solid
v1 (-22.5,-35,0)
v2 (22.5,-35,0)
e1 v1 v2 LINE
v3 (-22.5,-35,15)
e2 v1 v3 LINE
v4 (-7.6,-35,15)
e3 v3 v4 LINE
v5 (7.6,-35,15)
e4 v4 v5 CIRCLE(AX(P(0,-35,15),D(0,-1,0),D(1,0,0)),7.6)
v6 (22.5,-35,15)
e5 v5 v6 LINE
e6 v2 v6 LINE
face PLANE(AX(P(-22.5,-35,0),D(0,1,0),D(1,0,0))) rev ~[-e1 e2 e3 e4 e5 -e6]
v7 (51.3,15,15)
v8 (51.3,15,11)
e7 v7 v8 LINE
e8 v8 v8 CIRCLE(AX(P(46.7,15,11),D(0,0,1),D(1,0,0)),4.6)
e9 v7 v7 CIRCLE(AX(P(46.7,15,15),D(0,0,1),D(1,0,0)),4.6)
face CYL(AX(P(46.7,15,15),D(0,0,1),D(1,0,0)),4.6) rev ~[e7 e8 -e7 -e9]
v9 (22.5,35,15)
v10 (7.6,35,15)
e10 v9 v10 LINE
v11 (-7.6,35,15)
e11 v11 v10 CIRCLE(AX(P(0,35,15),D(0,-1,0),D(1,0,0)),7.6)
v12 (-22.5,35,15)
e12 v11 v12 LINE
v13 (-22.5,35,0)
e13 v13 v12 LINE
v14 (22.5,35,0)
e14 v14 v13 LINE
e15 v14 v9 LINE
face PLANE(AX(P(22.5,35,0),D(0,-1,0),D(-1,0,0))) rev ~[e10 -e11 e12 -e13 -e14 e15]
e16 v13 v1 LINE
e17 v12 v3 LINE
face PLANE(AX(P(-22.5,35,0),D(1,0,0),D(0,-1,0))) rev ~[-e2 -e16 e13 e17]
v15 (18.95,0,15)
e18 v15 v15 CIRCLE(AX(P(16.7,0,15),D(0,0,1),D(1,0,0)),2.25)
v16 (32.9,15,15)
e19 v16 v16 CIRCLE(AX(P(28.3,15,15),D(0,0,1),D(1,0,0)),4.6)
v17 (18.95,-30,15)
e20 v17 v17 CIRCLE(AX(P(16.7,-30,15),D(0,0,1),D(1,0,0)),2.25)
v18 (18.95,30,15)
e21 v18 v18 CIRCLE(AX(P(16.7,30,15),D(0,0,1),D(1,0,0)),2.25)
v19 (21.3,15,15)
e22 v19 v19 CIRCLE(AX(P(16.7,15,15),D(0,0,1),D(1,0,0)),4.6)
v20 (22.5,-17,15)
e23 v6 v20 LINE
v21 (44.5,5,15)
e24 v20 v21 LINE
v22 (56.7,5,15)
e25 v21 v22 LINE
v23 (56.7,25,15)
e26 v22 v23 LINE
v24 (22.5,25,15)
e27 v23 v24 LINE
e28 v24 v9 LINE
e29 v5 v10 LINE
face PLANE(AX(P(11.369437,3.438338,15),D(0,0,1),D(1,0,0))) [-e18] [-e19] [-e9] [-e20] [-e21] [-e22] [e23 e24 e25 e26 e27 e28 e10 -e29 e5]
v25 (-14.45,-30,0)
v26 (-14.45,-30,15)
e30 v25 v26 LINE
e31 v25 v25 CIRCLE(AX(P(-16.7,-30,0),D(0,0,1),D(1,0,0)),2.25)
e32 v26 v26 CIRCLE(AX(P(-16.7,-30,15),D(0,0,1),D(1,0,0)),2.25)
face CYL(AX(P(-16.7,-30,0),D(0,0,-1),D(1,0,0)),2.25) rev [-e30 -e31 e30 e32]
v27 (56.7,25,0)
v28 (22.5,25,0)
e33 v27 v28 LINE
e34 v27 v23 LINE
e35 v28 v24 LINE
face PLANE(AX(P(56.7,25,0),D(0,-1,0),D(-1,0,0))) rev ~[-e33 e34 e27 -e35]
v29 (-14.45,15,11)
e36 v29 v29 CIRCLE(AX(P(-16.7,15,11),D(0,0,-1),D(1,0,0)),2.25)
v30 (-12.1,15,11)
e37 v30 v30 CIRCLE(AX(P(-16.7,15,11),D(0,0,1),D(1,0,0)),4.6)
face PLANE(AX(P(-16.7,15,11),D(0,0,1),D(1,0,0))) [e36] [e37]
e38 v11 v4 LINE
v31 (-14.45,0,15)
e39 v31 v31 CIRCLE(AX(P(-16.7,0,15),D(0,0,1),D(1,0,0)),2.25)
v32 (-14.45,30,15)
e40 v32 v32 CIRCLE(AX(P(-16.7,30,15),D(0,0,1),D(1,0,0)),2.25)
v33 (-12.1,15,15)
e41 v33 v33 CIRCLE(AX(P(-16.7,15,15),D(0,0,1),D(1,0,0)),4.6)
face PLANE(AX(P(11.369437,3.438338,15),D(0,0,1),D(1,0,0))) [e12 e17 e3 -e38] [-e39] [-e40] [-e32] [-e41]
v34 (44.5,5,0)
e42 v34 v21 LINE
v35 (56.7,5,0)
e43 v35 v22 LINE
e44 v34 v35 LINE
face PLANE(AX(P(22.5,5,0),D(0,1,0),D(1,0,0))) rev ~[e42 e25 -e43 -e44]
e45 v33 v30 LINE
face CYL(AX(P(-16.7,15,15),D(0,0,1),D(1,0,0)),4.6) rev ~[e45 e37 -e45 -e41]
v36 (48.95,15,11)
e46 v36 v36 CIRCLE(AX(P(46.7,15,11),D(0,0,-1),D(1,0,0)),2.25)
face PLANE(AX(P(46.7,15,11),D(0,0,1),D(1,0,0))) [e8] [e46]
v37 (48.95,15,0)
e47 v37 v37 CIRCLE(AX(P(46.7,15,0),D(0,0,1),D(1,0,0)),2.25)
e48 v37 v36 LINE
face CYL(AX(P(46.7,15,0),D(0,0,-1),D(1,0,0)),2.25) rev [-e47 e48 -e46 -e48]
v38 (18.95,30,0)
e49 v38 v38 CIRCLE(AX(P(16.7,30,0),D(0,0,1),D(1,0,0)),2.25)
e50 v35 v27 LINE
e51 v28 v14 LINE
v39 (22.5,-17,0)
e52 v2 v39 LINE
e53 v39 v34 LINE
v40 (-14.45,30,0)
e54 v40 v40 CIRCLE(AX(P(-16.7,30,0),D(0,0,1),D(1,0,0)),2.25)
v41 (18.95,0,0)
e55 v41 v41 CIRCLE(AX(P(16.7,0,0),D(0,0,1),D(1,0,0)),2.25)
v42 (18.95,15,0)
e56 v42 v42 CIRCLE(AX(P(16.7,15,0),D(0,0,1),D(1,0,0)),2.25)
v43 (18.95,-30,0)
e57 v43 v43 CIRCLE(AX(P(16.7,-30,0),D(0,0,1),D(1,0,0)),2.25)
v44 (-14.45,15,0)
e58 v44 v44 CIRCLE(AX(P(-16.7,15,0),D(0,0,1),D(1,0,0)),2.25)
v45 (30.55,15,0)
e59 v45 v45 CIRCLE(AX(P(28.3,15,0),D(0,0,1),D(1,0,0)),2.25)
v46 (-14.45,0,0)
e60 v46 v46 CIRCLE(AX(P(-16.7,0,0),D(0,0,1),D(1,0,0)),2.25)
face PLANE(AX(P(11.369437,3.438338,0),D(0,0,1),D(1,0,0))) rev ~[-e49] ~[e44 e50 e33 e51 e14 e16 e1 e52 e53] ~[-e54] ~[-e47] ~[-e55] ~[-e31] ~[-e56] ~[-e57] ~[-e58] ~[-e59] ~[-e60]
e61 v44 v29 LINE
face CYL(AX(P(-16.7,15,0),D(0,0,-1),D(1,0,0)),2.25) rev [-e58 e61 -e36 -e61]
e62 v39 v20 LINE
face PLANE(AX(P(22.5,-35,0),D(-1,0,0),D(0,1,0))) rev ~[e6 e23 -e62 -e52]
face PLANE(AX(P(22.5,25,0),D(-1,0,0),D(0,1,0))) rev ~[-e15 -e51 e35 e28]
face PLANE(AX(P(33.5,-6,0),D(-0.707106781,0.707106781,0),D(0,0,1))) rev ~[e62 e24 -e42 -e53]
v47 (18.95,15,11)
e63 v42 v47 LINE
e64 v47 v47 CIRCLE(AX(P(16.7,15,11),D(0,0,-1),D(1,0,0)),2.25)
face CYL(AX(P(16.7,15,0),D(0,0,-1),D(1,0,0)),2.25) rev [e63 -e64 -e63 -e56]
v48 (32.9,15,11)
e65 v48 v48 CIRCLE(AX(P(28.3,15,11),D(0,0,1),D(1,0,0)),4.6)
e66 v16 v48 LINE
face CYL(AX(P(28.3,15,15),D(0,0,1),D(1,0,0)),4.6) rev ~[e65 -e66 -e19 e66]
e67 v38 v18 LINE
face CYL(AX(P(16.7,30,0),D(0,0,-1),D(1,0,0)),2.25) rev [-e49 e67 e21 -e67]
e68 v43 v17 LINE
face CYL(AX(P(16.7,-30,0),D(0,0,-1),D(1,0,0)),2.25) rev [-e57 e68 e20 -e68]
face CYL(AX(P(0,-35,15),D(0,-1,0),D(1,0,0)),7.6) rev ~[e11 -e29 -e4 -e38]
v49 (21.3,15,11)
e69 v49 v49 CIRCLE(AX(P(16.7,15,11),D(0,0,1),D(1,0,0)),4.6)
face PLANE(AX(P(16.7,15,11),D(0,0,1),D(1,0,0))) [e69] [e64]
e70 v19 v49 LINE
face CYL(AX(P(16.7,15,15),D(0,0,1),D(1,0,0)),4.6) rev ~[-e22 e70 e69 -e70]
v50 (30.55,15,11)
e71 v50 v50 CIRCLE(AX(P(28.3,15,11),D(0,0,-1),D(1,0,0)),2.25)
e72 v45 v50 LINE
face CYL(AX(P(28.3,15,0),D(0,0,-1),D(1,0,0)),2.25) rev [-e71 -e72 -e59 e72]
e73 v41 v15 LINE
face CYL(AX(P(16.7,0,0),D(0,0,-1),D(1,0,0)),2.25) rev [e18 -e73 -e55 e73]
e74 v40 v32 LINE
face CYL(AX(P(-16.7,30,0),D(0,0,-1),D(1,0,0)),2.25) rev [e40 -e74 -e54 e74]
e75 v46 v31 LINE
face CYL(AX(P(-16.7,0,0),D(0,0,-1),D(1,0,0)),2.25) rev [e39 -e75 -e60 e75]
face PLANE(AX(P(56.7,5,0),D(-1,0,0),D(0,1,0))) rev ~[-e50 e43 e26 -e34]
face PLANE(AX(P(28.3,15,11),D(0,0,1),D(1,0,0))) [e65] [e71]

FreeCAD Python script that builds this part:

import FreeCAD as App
import Part
import Sketcher
Q = App.Units.Quantity


def edges_at(feature, points):
    """Names of the edges that pass closest to the given points."""
    edges = feature.Shape.Edges
    near = lambda p: min(range(len(edges)), key=lambda i: edges[i].distToShape(Part.Vertex(*p))[0])
    return sorted({f"Edge{near(p) + 1}" for p in points})

doc = App.newDocument("Part")
body = doc.addObject("PartDesign::Body", "Body")

# Sketch on XY plane
sketch1 = body.newObject("Sketcher::SketchObject", "Sketch")
sketch1.AttachmentSupport = (doc.getObject("XY_Plane"), [""])
sketch1.MapMode = "FlatFace"
sketch1.addGeometry(Part.LineSegment(App.Vector(-22.5, -35, 0), App.Vector(22.5, -35, 0)), False)
sketch1.addGeometry(Part.LineSegment(App.Vector(22.5, -35, 0), App.Vector(22.5, 5, 0)), False)
sketch1.addGeometry(Part.LineSegment(App.Vector(22.5, 5, 0), App.Vector(56.7, 5, 0)), False)
sketch1.addGeometry(Part.LineSegment(App.Vector(56.7, 5, 0), App.Vector(56.7, 25, 0)), False)
sketch1.addGeometry(Part.LineSegment(App.Vector(56.7, 25, 0), App.Vector(22.5, 25, 0)), False)
sketch1.addGeometry(Part.LineSegment(App.Vector(22.5, 25, 0), App.Vector(22.5, 35, 0)), False)
sketch1.addGeometry(Part.LineSegment(App.Vector(22.5, 35, 0), App.Vector(-22.5, 35, 0)), False)
sketch1.addGeometry(Part.LineSegment(App.Vector(-22.5, 35, 0), App.Vector(-22.5, -35, 0)), False)
sketch1.addGeometry(Part.Circle(App.Vector(-16.7, -30, 0), App.Vector(0, 0, 1), 2.25), False)
sketch1.addGeometry(Part.Circle(App.Vector(16.7, -30, 0), App.Vector(0, 0, 1), 2.25), False)
sketch1.addGeometry(Part.Circle(App.Vector(-16.7, 0, 0), App.Vector(0, 0, 1), 2.25), False)
sketch1.addGeometry(Part.Circle(App.Vector(-16.7, 15, 0), App.Vector(0, 0, 1), 2.25), False)
sketch1.addGeometry(Part.Circle(App.Vector(-16.7, 30, 0), App.Vector(0, 0, 1), 2.25), False)
sketch1.addGeometry(Part.Circle(App.Vector(16.7, 0, 0), App.Vector(0, 0, 1), 2.25), False)
sketch1.addGeometry(Part.Circle(App.Vector(16.7, 15, 0), App.Vector(0, 0, 1), 2.25), False)
sketch1.addGeometry(Part.Circle(App.Vector(28.3, 15, 0), App.Vector(0, 0, 1), 2.25), False)
sketch1.addGeometry(Part.Circle(App.Vector(46.7, 15, 0), App.Vector(0, 0, 1), 2.25), False)
sketch1.addGeometry(Part.Circle(App.Vector(16.7, 30, 0), App.Vector(0, 0, 1), 2.25), False)
sketch1.addConstraint(Sketcher.Constraint("Coincident", 0, 2, 1, 1))
sketch1.addConstraint(Sketcher.Constraint("Coincident", 1, 2, 2, 1))
sketch1.addConstraint(Sketcher.Constraint("Coincident", 2, 2, 3, 1))
sketch1.addConstraint(Sketcher.Constraint("Coincident", 3, 2, 4, 1))
sketch1.addConstraint(Sketcher.Constraint("Coincident", 4, 2, 5, 1))
sketch1.addConstraint(Sketcher.Constraint("Coincident", 5, 2, 6, 1))
sketch1.addConstraint(Sketcher.Constraint("Coincident", 6, 2, 7, 1))
sketch1.addConstraint(Sketcher.Constraint("Coincident", 7, 2, 0, 1))
sketch1.addConstraint(Sketcher.Constraint("Horizontal", 0))
sketch1.addConstraint(Sketcher.Constraint("Vertical", 1))
sketch1.addConstraint(Sketcher.Constraint("Horizontal", 2))
sketch1.addConstraint(Sketcher.Constraint("Vertical", 3))
sketch1.addConstraint(Sketcher.Constraint("Horizontal", 4))
sketch1.addConstraint(Sketcher.Constraint("Vertical", 5))
sketch1.addConstraint(Sketcher.Constraint("Horizontal", 6))
sketch1.addConstraint(Sketcher.Constraint("Vertical", 7))
sketch1.addConstraint(Sketcher.Constraint("Equal", 8, 9))
sketch1.addConstraint(Sketcher.Constraint("Equal", 9, 10))
sketch1.addConstraint(Sketcher.Constraint("Equal", 10, 11))
sketch1.addConstraint(Sketcher.Constraint("Equal", 11, 12))
sketch1.addConstraint(Sketcher.Constraint("Equal", 12, 13))
sketch1.addConstraint(Sketcher.Constraint("Equal", 13, 14))
sketch1.addConstraint(Sketcher.Constraint("Equal", 14, 15))
sketch1.addConstraint(Sketcher.Constraint("Equal", 15, 16))
sketch1.addConstraint(Sketcher.Constraint("Equal", 16, 17))
sketch1.addConstraint(Sketcher.Constraint("Symmetric", 9, 3, 12, 3, -1, 1))
sketch1.addConstraint(Sketcher.Constraint("Symmetric", 10, 3, 13, 3, -1, 1))
sketch1.addConstraint(Sketcher.Constraint("Symmetric", 8, 3, 17, 3, -1, 1))
sketch1.addConstraint(Sketcher.Constraint("Symmetric", 0, 2, 6, 2, -1, 1))
sketch1.addConstraint(Sketcher.Constraint("Symmetric", 8, 3, 9, 3, -2))
sketch1.addConstraint(Sketcher.Constraint("Symmetric", 11, 3, 14, 3, -2))
sketch1.addConstraint(Sketcher.Constraint("PointOnObject", 10, 3, -1))
sketch1.addConstraint(Sketcher.Constraint("Horizontal", 14, 3, 15, 3))
sketch1.addConstraint(Sketcher.Constraint("Horizontal", 15, 3, 16, 3))
sketch1.addConstraint(Sketcher.Constraint("Vertical", 8, 3, 10, 3))
sketch1.addConstraint(Sketcher.Constraint("Vertical", 10, 3, 11, 3))
sketch1.addConstraint(Sketcher.Constraint("Vertical", 1, 2, 4, 2))
sketch1.addConstraint(Sketcher.Constraint("Diameter", 8, Q("4.5 mm")))
sketch1.addConstraint(Sketcher.Constraint("DistanceX", 0, 1, 0, 2, Q("45 mm")))
sketch1.addConstraint(Sketcher.Constraint("DistanceY", 1, 1, 1, 2, Q("40 mm")))
sketch1.addConstraint(Sketcher.Constraint("DistanceY", 3, 1, 3, 2, Q("20 mm")))
sketch1.addConstraint(Sketcher.Constraint("DistanceY", 5, 1, 5, 2, Q("10 mm")))
sketch1.addConstraint(Sketcher.Constraint("DistanceX", 2, 1, 2, 2, Q("34.2 mm")))
sketch1.addConstraint(Sketcher.Constraint("DistanceY", 8, 3, -1, 1, Q("30 mm")))
sketch1.addConstraint(Sketcher.Constraint("DistanceY", -1, 1, 11, 3, Q("15 mm")))
sketch1.addConstraint(Sketcher.Constraint("DistanceX", 11, 3, 15, 3, Q("45 mm")))
sketch1.addConstraint(Sketcher.Constraint("DistanceX", 14, 3, 16, 3, Q("30 mm")))
sketch1.addConstraint(Sketcher.Constraint("DistanceX", 16, 3, 2, 2, Q("10 mm")))
pad1 = body.newObject("PartDesign::Pad", "Pad")
pad1.Profile = sketch1
pad1.Length = 15

# Sketch on XZ plane
sketch2 = body.newObject("Sketcher::SketchObject", "Sketch001")
sketch2.AttachmentSupport = (doc.getObject("XZ_Plane"), [""])
sketch2.MapMode = "FlatFace"
sketch2.AttachmentOffset = App.Placement(App.Vector(0, 0, 35), App.Rotation())
sketch2.addGeometry(Part.Circle(App.Vector(0, 15, 0), App.Vector(0, 0, 1), 7.6), False)
sketch2.addConstraint(Sketcher.Constraint("PointOnObject", 0, 3, -2))
sketch2.addConstraint(Sketcher.Constraint("Diameter", 0, Q("15.2 mm")))
sketch2.addConstraint(Sketcher.Constraint("DistanceY", -1, 1, 0, 3, Q("15 mm")))
pocket1 = body.newObject("PartDesign::Pocket", "Pocket")
pocket1.Profile = sketch2
pocket1.Type = "ThroughAll"

# Sketch on XY plane
sketch3 = body.newObject("Sketcher::SketchObject", "Sketch002")
sketch3.AttachmentSupport = (doc.getObject("XY_Plane"), [""])
sketch3.MapMode = "FlatFace"
sketch3.AttachmentOffset = App.Placement(App.Vector(0, 0, 15), App.Rotation())
sketch3.addGeometry(Part.Circle(App.Vector(-16.7, 15, 0), App.Vector(0, 0, 1), 4.6), False)
sketch3.addGeometry(Part.Circle(App.Vector(16.7, 15, 0), App.Vector(0, 0, 1), 4.6), False)
sketch3.addGeometry(Part.Circle(App.Vector(28.3, 15, 0), App.Vector(0, 0, 1), 4.6), False)
sketch3.addGeometry(Part.Circle(App.Vector(46.7, 15, 0), App.Vector(0, 0, 1), 4.6), False)
sketch3.addConstraint(Sketcher.Constraint("Equal", 0, 1))
sketch3.addConstraint(Sketcher.Constraint("Equal", 1, 2))
sketch3.addConstraint(Sketcher.Constraint("Equal", 2, 3))
sketch3.addConstraint(Sketcher.Constraint("Symmetric", 0, 3, 1, 3, -2))
sketch3.addConstraint(Sketcher.Constraint("Horizontal", 1, 3, 2, 3))
sketch3.addConstraint(Sketcher.Constraint("Horizontal", 2, 3, 3, 3))
sketch3.addConstraint(Sketcher.Constraint("Diameter", 0, Q("9.2 mm")))
sketch3.addConstraint(Sketcher.Constraint("DistanceY", -1, 1, 0, 3, Q("15 mm")))
sketch3.addConstraint(Sketcher.Constraint("DistanceX", 0, 3, 2, 3, Q("45 mm")))
sketch3.addConstraint(Sketcher.Constraint("DistanceX", 1, 3, 3, 3, Q("30 mm")))
sketch3.addConstraint(Sketcher.Constraint("DistanceX", 0, 3, -1, 1, Q("16.7 mm")))
pocket2 = body.newObject("PartDesign::Pocket", "Pocket001")
pocket2.Profile = sketch3
pocket2.Length = 4
doc.recompute()

chamfer = body.newObject("PartDesign::Chamfer", "Chamfer")
chamfer.Base = (pocket2, edges_at(pocket2, [(22.5, 5, 7.5)]))
chamfer.Size = 22

doc.recompute()
